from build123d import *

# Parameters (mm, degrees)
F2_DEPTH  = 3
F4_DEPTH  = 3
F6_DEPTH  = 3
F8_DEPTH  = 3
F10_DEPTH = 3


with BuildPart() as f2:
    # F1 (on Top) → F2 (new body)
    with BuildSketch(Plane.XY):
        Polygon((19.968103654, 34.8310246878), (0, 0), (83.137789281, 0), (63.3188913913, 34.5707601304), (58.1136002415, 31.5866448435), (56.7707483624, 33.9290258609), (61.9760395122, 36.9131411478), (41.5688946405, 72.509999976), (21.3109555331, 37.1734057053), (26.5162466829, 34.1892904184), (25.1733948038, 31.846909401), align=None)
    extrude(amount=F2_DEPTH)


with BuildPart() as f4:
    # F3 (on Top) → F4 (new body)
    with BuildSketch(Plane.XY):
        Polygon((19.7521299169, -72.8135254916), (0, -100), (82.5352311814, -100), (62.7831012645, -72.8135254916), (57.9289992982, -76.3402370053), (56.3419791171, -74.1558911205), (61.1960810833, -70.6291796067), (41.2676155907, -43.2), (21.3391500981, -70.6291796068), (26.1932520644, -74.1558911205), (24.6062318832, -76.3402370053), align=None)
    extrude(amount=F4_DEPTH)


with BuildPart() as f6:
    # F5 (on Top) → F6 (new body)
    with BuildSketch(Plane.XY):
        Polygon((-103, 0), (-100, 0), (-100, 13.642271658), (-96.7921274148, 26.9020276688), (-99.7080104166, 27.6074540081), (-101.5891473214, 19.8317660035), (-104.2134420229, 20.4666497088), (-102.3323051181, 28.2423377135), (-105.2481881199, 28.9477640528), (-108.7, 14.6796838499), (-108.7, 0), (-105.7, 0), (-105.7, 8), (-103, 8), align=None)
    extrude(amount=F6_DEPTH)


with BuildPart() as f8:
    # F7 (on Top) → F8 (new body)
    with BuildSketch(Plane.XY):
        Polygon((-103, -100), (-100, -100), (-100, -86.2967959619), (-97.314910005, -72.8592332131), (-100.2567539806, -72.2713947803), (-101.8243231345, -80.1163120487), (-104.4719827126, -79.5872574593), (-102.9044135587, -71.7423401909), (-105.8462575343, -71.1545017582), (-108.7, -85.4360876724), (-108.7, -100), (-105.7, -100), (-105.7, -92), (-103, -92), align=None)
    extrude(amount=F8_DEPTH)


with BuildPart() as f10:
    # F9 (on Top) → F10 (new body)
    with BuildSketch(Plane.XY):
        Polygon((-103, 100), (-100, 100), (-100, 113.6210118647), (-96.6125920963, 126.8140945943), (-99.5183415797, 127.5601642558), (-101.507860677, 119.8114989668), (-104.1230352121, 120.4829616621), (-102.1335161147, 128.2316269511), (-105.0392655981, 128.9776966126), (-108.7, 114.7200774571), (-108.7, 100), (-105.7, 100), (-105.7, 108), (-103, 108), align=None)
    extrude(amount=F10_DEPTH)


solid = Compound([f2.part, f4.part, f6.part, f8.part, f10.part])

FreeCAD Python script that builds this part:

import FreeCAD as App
import Part
import Sketcher
from FreeCAD import Vector
Q = App.Units.Quantity


def add_polygon(sketch, points):
    """Adds a closed chain of lines whose ends are joined by coincident constraints."""
    first, n = sketch.GeometryCount, len(points)
    for a, b in zip(points, points[1:] + points[:1]):
        sketch.addGeometry(Part.LineSegment(App.Vector(*a, 0), App.Vector(*b, 0)), False)
    for i in range(n):
        sketch.addConstraint(Sketcher.Constraint("Coincident", first + i, 2, first + (i + 1) % n, 1))

doc = App.newDocument("Part")
body = doc.addObject("PartDesign::Body", "Body")

sketch1 = body.newObject("Sketcher::SketchObject", "Sketch")
sketch1.AttachmentSupport = (doc.getObject("XY_Plane"), [""])
sketch1.MapMode = "FlatFace"
add_polygon(sketch1, [(20, 34.8), (0, 0), (83.1, 0), (63.3, 34.6), (58.1, 31.6), (56.8, 33.9), (62, 36.9), (41.6, 72.5), (21.3, 37.2), (26.5, 34.2), (25.2, 31.8)])
sketch1.addConstraint([
    Sketcher.Constraint("Horizontal", 1),
    Sketcher.Constraint("Coincident", 0, 2, -1, 1),
    Sketcher.Constraint("Perpendicular", 2, 3),
    Sketcher.Constraint("Perpendicular", 3, 4),
    Sketcher.Constraint("Perpendicular", 4, 5),
    Sketcher.Constraint("Perpendicular", 5, 6),
    Sketcher.Constraint("Parallel", 0, 7),
    Sketcher.Constraint("Perpendicular", 7, 8),
    Sketcher.Constraint("Perpendicular", 8, 9),
    Sketcher.Constraint("Perpendicular", 9, 10),
    Sketcher.Constraint("Equal", 3, 5),
    Sketcher.Constraint("Equal", 5, 8),
    Sketcher.Constraint("Equal", 4, 9),
    Sketcher.Constraint("Equal", 8, 10),
    Sketcher.Constraint("Distance", 3, 6.0),
    Sketcher.Constraint("Distance", 4, 2.7),
    Sketcher.Constraint("DistanceY", -1, 1, 6, 2, 72.51),
    Sketcher.Constraint("DistanceY", 4, 2, 10, 2, 0.901999),
    Sketcher.Constraint("DistanceX", 1, 1, 1, 2, 83.137789),
    Sketcher.Constraint("DistanceX", -1, 1, 3, 2, 58.1136),
    Sketcher.Constraint("DistanceX", 8, 2, 4, 2, 30.254502),
])
pad1 = body.newObject("PartDesign::Pad", "Pad")
pad1.Profile = sketch1
pad1.Length = 3
body2 = doc.addObject("PartDesign::Body", "Body001")

sketch2 = body2.newObject("Sketcher::SketchObject", "Sketch001")
sketch2.AttachmentSupport = (doc.getObject("XY_Plane001"), [""])
sketch2.MapMode = "FlatFace"
add_polygon(sketch2, [(19.8, -72.8), (0, -100), (82.5, -100), (62.8, -72.8), (57.9, -76.3), (56.3, -74.2), (61.2, -70.6), (41.3, -43.2), (21.3, -70.6), (26.2, -74.2), (24.6, -76.3)])
sketch2.addConstraint([
    Sketcher.Constraint("Horizontal", 1),
    Sketcher.Constraint("PointOnObject", 0, 2, -2),
    Sketcher.Constraint("Perpendicular", 2, 3),
    Sketcher.Constraint("Perpendicular", 3, 4),
    Sketcher.Constraint("Perpendicular", 4, 5),
    Sketcher.Constraint("Perpendicular", 5, 6),
    Sketcher.Constraint("Parallel", 0, 7),
    Sketcher.Constraint("Perpendicular", 7, 8),
    Sketcher.Constraint("Perpendicular", 8, 9),
    Sketcher.Constraint("Perpendicular", 9, 10),
    Sketcher.Constraint("Horizontal", 5, 2, 7, 2),
    Sketcher.Constraint("Horizontal", 4, 2, 8, 2),
    Sketcher.Constraint("Horizontal", 3, 2, 9, 2),
    Sketcher.Constraint("Horizontal", 2, 2, 10, 2),
    Sketcher.Constraint("Equal", 0, 2),
    Sketcher.Constraint("Equal", 3, 5),
    Sketcher.Constraint("Angle", 0, Q("-126 deg")),
    Sketcher.Constraint("Distance", 3, 6.0),
    Sketcher.Constraint("DistanceY", 0, 2, -1, 1, 100.0),
    Sketcher.Constraint("Distance", 4, 2.7),
    Sketcher.Constraint("DistanceY", 6, 2, -1, 1, 43.2),
    Sketcher.Constraint("DistanceX", -1, 1, 3, 2, 57.928999),
])
pad2 = body2.newObject("PartDesign::Pad", "Pad001")
pad2.Profile = sketch2
pad2.Length = 3
body3 = doc.addObject("PartDesign::Body", "Body002")

sketch3 = body3.newObject("Sketcher::SketchObject", "Sketch002")
sketch3.AttachmentSupport = (doc.getObject("XY_Plane002"), [""])
sketch3.MapMode = "FlatFace"
add_polygon(sketch3, [(-103, 0), (-100, 0), (-100, 13.6), (-96.8, 26.9), (-99.7, 27.6), (-101.6, 19.8), (-104.2, 20.5), (-102.3, 28.2), (-105.2, 28.9), (-108.7, 14.7), (-108.7, 0), (-105.7, 0), (-105.7, 8), (-103, 8)])
sketch3.addConstraint([
    Sketcher.Constraint("Horizontal", 0),
    Sketcher.Constraint("Vertical", 1),
    Sketcher.Constraint("Vertical", 9),
    Sketcher.Constraint("Horizontal", 10),
    Sketcher.Constraint("Vertical", 11),
    Sketcher.Constraint("Horizontal", 12),
    Sketcher.Constraint("Vertical", 13),
    Sketcher.Constraint("PointOnObject", 0, 2, -1),
    Sketcher.Constraint("PointOnObject", 9, 2, -1),
    Sketcher.Constraint("Perpendicular", 2, 3),
    Sketcher.Constraint("Perpendicular", 3, 4),
    Sketcher.Constraint("Perpendicular", 4, 5),
    Sketcher.Constraint("Perpendicular", 5, 6),
    Sketcher.Constraint("Perpendicular", 6, 7),
    Sketcher.Constraint("Perpendicular", 7, 8),
    Sketcher.Constraint("Equal", 0, 10),
    Sketcher.Constraint("Equal", 4, 6),
    Sketcher.Constraint("Equal", 3, 7),
    Sketcher.Constraint("DistanceX", 0, 1, 0, 2, 3.0),
    Sketcher.Constraint("DistanceY", 11, 1, 11, 2, 8.0),
    Sketcher.Constraint("Distance", 3, 3.0),
    Sketcher.Constraint("Distance", 4, 8.0),
    Sketcher.Constraint("DistanceX", 12, 1, 12, 2, 2.7),
    Sketcher.Constraint("DistanceX", 0, 2, -1, 1, 100.0),
    Sketcher.Constraint("Angle", 2, Q("76.4 deg")),
    Sketcher.Constraint("Distance", 5, 2.7),
    Sketcher.Constraint("DistanceY", 1, 1, 1, 2, 13.642272),
    Sketcher.Constraint("Distance", 2, 13.642272),
])
pad3 = body3.newObject("PartDesign::Pad", "Pad002")
pad3.Profile = sketch3
pad3.Length = 3
body4 = doc.addObject("PartDesign::Body", "Body003")

sketch4 = body4.newObject("Sketcher::SketchObject", "Sketch003")
sketch4.AttachmentSupport = (doc.getObject("XY_Plane003"), [""])
sketch4.MapMode = "FlatFace"
add_polygon(sketch4, [(-103, -100), (-100, -100), (-100, -86.3), (-97.3, -72.9), (-100.3, -72.3), (-101.8, -80.1), (-104.5, -79.6), (-102.9, -71.7), (-105.8, -71.2), (-108.7, -85.4), (-108.7, -100), (-105.7, -100), (-105.7, -92), (-103, -92)])
sketch4.addConstraint([
    Sketcher.Constraint("Horizontal", 0),
    Sketcher.Constraint("Vertical", 1),
    Sketcher.Constraint("Vertical", 9),
    Sketcher.Constraint("Horizontal", 10),
    Sketcher.Constraint("Vertical", 11),
    Sketcher.Constraint("Horizontal", 12),
    Sketcher.Constraint("Vertical", 13),
    Sketcher.Constraint("Perpendicular", 2, 3),
    Sketcher.Constraint("Perpendicular", 3, 4),
    Sketcher.Constraint("Perpendicular", 4, 5),
    Sketcher.Constraint("Perpendicular", 5, 6),
    Sketcher.Constraint("Perpendicular", 6, 7),
    Sketcher.Constraint("Perpendicular", 7, 8),
    Sketcher.Constraint("Horizontal", 0, 2, 9, 2),
    Sketcher.Constraint("Equal", 0, 10),
    Sketcher.Constraint("Equal", 4, 6),
    Sketcher.Constraint("Equal", 3, 7),
    Sketcher.Constraint("DistanceX", 0, 1, 0, 2, 3.0),
    Sketcher.Constraint("DistanceY", 11, 1, 11, 2, 8.0),
    Sketcher.Constraint("Distance", 3, 3.0),
    Sketcher.Constraint("Distance", 4, 8.0),
    Sketcher.Constraint("DistanceX", 12, 1, 12, 2, 2.7),
    Sketcher.Constraint("DistanceX", 0, 2, -1, 1, 100.0),
    Sketcher.Constraint("DistanceY", 0, 2, -1, 1, 100.0),
    Sketcher.Constraint("Angle", 2, Q("78.7 deg")),
    Sketcher.Constraint("Distance", 5, 2.7),
    Sketcher.Constraint("DistanceY", 7, 2, -1, 1, 71.154502),
    Sketcher.Constraint("DistanceY", 1, 2, 3, 2, 14.025401),
])
pad4 = body4.newObject("PartDesign::Pad", "Pad003")
pad4.Profile = sketch4
pad4.Length = 3
body5 = doc.addObject("PartDesign::Body", "Body004")

sketch5 = body5.newObject("Sketcher::SketchObject", "Sketch004")
sketch5.AttachmentSupport = (doc.getObject("XY_Plane004"), [""])
sketch5.MapMode = "FlatFace"
add_polygon(sketch5, [(-103, 100), (-100, 100), (-100, 113.6), (-96.6, 126.8), (-99.5, 127.6), (-101.5, 119.8), (-104.1, 120.5), (-102.1, 128.2), (-105, 129), (-108.7, 114.7), (-108.7, 100), (-105.7, 100), (-105.7, 108), (-103, 108)])
sketch5.addConstraint([
    Sketcher.Constraint("Horizontal", 0),
    Sketcher.Constraint("Vertical", 1),
    Sketcher.Constraint("Vertical", 9),
    Sketcher.Constraint("Horizontal", 10),
    Sketcher.Constraint("Vertical", 11),
    Sketcher.Constraint("Horizontal", 12),
    Sketcher.Constraint("Vertical", 13),
    Sketcher.Constraint("Perpendicular", 2, 3),
    Sketcher.Constraint("Perpendicular", 3, 4),
    Sketcher.Constraint("Perpendicular", 4, 5),
    Sketcher.Constraint("Perpendicular", 5, 6),
    Sketcher.Constraint("Perpendicular", 6, 7),
    Sketcher.Constraint("Perpendicular", 7, 8),
    Sketcher.Constraint("Horizontal", 0, 2, 9, 2),
    Sketcher.Constraint("Equal", 0, 10),
    Sketcher.Constraint("Equal", 4, 6),
    Sketcher.Constraint("Equal", 3, 7),
    Sketcher.Constraint("DistanceX", 0, 1, 0, 2, 3.0),
    Sketcher.Constraint("DistanceY", 11, 1, 11, 2, 8.0),
    Sketcher.Constraint("Distance", 3, 3.0),
    Sketcher.Constraint("Distance", 4, 8.0),
    Sketcher.Constraint("DistanceX", 12, 1, 12, 2, 2.7),
    Sketcher.Constraint("DistanceX", 0, 2, -1, 1, 100.0),
    Sketcher.Constraint("DistanceY", -1, 1, 0, 2, 100.0),
    Sketcher.Constraint("Angle", 2, Q("75.6 deg")),
    Sketcher.Constraint("Distance", 5, 2.7),
    Sketcher.Constraint("DistanceY", 1, 1, 1, 2, 13.621012),
    Sketcher.Constraint("DistanceY", -1, 1, 4, 2, 119.811499),
])
pad5 = body5.newObject("PartDesign::Pad", "Pad004")
pad5.Profile = sketch5
pad5.Length = 3

doc.recompute()
